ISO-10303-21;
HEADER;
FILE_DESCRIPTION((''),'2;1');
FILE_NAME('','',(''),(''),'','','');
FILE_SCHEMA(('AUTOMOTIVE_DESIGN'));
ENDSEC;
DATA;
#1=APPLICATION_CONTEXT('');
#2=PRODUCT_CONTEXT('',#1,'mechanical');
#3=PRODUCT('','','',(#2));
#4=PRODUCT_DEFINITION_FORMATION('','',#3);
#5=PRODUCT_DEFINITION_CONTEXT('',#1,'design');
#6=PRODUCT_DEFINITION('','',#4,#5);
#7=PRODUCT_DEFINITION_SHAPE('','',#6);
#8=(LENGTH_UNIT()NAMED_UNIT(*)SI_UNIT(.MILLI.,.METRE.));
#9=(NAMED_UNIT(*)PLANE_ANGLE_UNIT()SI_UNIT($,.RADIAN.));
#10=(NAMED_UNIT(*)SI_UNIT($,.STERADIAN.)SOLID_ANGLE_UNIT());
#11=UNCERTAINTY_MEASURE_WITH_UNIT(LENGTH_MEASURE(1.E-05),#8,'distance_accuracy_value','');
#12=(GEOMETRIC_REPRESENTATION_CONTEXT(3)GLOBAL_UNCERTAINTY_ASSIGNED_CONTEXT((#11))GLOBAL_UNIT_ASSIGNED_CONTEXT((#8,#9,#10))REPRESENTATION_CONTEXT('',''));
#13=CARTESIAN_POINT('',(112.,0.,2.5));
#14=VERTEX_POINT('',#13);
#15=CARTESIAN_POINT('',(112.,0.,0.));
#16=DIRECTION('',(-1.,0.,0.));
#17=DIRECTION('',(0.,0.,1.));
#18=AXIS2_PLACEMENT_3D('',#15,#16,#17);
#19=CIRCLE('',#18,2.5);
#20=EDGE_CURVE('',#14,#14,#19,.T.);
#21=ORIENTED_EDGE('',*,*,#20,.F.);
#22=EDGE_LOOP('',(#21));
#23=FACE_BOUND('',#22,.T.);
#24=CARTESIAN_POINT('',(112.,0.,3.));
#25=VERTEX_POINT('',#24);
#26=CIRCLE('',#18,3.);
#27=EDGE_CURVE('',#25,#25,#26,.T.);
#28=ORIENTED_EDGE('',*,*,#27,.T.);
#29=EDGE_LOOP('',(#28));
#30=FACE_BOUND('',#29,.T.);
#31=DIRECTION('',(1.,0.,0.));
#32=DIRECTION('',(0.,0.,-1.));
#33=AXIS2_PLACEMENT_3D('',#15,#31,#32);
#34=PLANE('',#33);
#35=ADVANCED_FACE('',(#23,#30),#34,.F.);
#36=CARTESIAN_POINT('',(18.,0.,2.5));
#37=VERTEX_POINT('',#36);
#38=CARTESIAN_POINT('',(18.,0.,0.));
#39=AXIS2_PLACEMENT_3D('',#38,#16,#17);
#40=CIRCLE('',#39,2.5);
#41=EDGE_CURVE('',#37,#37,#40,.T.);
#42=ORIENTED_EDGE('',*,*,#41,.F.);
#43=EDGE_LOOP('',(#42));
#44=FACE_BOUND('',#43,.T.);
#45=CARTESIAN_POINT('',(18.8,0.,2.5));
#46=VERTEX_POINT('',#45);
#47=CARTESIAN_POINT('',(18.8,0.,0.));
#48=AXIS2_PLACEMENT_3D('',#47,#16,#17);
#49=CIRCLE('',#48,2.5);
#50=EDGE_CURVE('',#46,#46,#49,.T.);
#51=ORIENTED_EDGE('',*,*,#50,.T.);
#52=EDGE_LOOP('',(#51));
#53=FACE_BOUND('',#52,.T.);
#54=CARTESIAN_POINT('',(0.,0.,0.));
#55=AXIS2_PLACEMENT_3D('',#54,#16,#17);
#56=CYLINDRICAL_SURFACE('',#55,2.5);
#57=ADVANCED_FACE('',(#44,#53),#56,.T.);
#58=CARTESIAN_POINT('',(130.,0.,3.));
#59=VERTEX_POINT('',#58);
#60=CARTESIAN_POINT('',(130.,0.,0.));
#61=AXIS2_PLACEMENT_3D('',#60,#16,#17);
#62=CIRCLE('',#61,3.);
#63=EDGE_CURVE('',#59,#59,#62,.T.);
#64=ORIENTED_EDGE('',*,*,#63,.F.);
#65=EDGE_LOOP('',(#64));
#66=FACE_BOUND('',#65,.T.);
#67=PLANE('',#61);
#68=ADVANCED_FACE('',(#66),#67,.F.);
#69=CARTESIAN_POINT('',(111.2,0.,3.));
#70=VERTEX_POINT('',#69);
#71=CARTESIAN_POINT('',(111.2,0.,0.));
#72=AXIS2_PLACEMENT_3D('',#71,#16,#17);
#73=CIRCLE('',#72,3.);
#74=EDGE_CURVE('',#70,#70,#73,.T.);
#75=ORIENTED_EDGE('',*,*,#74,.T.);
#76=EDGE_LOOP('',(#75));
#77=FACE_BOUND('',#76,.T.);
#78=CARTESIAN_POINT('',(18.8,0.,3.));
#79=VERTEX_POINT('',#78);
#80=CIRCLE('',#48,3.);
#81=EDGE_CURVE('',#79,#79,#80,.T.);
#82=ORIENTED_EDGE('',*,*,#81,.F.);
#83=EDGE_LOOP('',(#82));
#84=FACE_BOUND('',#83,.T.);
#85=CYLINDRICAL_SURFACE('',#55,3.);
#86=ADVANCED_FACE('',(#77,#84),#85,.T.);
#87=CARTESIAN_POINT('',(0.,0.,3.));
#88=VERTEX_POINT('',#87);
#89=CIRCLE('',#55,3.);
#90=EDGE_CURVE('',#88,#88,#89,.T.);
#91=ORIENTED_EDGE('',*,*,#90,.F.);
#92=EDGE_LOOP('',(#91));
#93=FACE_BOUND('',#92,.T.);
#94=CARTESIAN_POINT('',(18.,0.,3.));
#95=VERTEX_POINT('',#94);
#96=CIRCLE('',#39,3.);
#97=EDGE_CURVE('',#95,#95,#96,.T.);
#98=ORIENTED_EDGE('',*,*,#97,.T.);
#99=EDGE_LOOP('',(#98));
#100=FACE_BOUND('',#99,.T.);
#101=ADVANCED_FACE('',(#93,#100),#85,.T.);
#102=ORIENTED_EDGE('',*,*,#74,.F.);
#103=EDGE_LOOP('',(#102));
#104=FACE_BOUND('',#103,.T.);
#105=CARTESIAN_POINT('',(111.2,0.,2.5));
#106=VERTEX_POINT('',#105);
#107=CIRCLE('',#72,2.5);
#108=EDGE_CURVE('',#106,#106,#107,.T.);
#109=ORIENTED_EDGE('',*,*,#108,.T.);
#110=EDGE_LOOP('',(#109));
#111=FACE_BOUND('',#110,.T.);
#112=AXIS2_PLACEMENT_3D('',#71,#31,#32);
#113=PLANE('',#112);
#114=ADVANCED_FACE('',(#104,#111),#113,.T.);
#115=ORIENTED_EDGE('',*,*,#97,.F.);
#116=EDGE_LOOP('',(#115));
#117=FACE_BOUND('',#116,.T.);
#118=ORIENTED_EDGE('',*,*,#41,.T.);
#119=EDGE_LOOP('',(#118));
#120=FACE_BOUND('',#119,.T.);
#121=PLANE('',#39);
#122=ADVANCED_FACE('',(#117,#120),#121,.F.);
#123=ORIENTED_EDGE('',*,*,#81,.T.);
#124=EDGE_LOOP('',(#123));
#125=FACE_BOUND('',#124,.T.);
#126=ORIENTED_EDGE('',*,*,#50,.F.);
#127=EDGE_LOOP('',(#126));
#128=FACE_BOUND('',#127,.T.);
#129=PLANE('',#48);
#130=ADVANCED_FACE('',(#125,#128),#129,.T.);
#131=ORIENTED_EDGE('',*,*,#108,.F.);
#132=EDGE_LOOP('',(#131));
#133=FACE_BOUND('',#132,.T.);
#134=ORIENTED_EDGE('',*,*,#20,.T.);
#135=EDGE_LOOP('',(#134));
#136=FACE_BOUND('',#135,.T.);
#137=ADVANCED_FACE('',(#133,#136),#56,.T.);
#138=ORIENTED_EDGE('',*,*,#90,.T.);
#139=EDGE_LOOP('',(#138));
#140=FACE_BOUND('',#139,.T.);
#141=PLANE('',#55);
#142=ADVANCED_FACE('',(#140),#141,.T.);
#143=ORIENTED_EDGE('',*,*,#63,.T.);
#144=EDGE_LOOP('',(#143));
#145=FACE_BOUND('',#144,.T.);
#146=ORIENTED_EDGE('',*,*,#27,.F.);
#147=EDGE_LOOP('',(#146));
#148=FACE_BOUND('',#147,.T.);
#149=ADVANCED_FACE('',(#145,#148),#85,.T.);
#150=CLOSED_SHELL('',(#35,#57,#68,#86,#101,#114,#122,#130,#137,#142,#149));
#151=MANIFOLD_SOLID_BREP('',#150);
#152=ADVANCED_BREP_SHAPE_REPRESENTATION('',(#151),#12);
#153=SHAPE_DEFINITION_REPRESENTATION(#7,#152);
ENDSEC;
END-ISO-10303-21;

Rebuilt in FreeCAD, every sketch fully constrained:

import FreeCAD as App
import Part
import Sketcher
from FreeCAD import Vector

doc = App.newDocument("Part")
body = doc.addObject("PartDesign::Body", "Body")

sketch1 = doc.addObject("Sketcher::SketchObject", "Sketch")
body.addObject(sketch1)
sketch1.AttachmentSupport = (doc.XY_Plane, [""])
sketch1.MapMode = "FlatFace"
sketch1.addGeometry(Part.LineSegment(Vector(18.8, -3, 0), Vector(111.2, -3, 0)), False)
sketch1.addGeometry(Part.LineSegment(Vector(111.2, -3, 0), Vector(111.2, -2.5, 0)), False)
sketch1.addGeometry(Part.LineSegment(Vector(111.2, -2.5, 0), Vector(112, -2.5, 0)), False)
sketch1.addGeometry(Part.LineSegment(Vector(112, -2.5, 0), Vector(112, -3, 0)), False)
sketch1.addGeometry(Part.LineSegment(Vector(112, -3, 0), Vector(130, -3, 0)), False)
sketch1.addGeometry(Part.LineSegment(Vector(130, -3, 0), Vector(130, 0, 0)), False)
sketch1.addGeometry(Part.LineSegment(Vector(130, 0, 0), Vector(0, 0, 0)), False)
sketch1.addGeometry(Part.LineSegment(Vector(0, 0, 0), Vector(0, -3, 0)), False)
sketch1.addGeometry(Part.LineSegment(Vector(0, -3, 0), Vector(18, -3, 0)), False)
sketch1.addGeometry(Part.LineSegment(Vector(18, -3, 0), Vector(18, -2.5, 0)), False)
sketch1.addGeometry(Part.LineSegment(Vector(18, -2.5, 0), Vector(18.8, -2.5, 0)), False)
sketch1.addGeometry(Part.LineSegment(Vector(18.8, -2.5, 0), Vector(18.8, -3, 0)), False)
sketch1.addConstraint(Sketcher.Constraint("Coincident", 0, 2, 1, 1))
sketch1.addConstraint(Sketcher.Constraint("Coincident", 1, 2, 2, 1))
sketch1.addConstraint(Sketcher.Constraint("Coincident", 2, 2, 3, 1))
sketch1.addConstraint(Sketcher.Constraint("Coincident", 3, 2, 4, 1))
sketch1.addConstraint(Sketcher.Constraint("Coincident", 4, 2, 5, 1))
sketch1.addConstraint(Sketcher.Constraint("Coincident", 5, 2, 6, 1))
sketch1.addConstraint(Sketcher.Constraint("Coincident", 6, 2, 7, 1))
sketch1.addConstraint(Sketcher.Constraint("Coincident", 7, 2, 8, 1))
sketch1.addConstraint(Sketcher.Constraint("Coincident", 8, 2, 9, 1))
sketch1.addConstraint(Sketcher.Constraint("Coincident", 9, 2, 10, 1))
sketch1.addConstraint(Sketcher.Constraint("Coincident", 10, 2, 11, 1))
sketch1.addConstraint(Sketcher.Constraint("Coincident", 11, 2, 0, 1))
sketch1.addConstraint(Sketcher.Constraint("Horizontal", 0))
sketch1.addConstraint(Sketcher.Constraint("Vertical", 1))
sketch1.addConstraint(Sketcher.Constraint("Horizontal", 2))
sketch1.addConstraint(Sketcher.Constraint("Vertical", 3))
sketch1.addConstraint(Sketcher.Constraint("Horizontal", 4))
sketch1.addConstraint(Sketcher.Constraint("Vertical", 5))
sketch1.addConstraint(Sketcher.Constraint("Horizontal", 6))
sketch1.addConstraint(Sketcher.Constraint("Vertical", 7))
sketch1.addConstraint(Sketcher.Constraint("Horizontal", 8))
sketch1.addConstraint(Sketcher.Constraint("Vertical", 9))
sketch1.addConstraint(Sketcher.Constraint("Horizontal", 10))
sketch1.addConstraint(Sketcher.Constraint("Vertical", 11))
sketch1.addConstraint(Sketcher.Constraint("Coincident", 6, 2, -1, 1))
sketch1.addConstraint(Sketcher.Constraint("Horizontal", 0, 2, 3, 2))
sketch1.addConstraint(Sketcher.Constraint("Horizontal", 4, 2, 7, 2))
sketch1.addConstraint(Sketcher.Constraint("Horizontal", 2, 2, 9, 2))
sketch1.addConstraint(Sketcher.Constraint("Equal", 4, 8))
sketch1.addConstraint(Sketcher.Constraint("Equal", 2, 10))
sketch1.addConstraint(Sketcher.Constraint("DistanceX", 4, 1, 4, 2, 18.0))
sketch1.addConstraint(Sketcher.Constraint("DistanceX", 6, 2, 6, 1, 130.0))
sketch1.addConstraint(Sketcher.Constraint("DistanceY", 5, 1, 5, 2, 3.0))
sketch1.addConstraint(Sketcher.Constraint("DistanceX", 0, 1, 0, 2, 92.4))
sketch1.addConstraint(Sketcher.Constraint("DistanceY", 1, 1, 1, 2, 0.5))
revolution = doc.addObject("PartDesign::Revolution", "Revolution")
body.addObject(revolution)
revolution.Profile = sketch1
revolution.ReferenceAxis = (sketch1, ["H_Axis"])
revolution.Angle = 360

doc.recompute()
